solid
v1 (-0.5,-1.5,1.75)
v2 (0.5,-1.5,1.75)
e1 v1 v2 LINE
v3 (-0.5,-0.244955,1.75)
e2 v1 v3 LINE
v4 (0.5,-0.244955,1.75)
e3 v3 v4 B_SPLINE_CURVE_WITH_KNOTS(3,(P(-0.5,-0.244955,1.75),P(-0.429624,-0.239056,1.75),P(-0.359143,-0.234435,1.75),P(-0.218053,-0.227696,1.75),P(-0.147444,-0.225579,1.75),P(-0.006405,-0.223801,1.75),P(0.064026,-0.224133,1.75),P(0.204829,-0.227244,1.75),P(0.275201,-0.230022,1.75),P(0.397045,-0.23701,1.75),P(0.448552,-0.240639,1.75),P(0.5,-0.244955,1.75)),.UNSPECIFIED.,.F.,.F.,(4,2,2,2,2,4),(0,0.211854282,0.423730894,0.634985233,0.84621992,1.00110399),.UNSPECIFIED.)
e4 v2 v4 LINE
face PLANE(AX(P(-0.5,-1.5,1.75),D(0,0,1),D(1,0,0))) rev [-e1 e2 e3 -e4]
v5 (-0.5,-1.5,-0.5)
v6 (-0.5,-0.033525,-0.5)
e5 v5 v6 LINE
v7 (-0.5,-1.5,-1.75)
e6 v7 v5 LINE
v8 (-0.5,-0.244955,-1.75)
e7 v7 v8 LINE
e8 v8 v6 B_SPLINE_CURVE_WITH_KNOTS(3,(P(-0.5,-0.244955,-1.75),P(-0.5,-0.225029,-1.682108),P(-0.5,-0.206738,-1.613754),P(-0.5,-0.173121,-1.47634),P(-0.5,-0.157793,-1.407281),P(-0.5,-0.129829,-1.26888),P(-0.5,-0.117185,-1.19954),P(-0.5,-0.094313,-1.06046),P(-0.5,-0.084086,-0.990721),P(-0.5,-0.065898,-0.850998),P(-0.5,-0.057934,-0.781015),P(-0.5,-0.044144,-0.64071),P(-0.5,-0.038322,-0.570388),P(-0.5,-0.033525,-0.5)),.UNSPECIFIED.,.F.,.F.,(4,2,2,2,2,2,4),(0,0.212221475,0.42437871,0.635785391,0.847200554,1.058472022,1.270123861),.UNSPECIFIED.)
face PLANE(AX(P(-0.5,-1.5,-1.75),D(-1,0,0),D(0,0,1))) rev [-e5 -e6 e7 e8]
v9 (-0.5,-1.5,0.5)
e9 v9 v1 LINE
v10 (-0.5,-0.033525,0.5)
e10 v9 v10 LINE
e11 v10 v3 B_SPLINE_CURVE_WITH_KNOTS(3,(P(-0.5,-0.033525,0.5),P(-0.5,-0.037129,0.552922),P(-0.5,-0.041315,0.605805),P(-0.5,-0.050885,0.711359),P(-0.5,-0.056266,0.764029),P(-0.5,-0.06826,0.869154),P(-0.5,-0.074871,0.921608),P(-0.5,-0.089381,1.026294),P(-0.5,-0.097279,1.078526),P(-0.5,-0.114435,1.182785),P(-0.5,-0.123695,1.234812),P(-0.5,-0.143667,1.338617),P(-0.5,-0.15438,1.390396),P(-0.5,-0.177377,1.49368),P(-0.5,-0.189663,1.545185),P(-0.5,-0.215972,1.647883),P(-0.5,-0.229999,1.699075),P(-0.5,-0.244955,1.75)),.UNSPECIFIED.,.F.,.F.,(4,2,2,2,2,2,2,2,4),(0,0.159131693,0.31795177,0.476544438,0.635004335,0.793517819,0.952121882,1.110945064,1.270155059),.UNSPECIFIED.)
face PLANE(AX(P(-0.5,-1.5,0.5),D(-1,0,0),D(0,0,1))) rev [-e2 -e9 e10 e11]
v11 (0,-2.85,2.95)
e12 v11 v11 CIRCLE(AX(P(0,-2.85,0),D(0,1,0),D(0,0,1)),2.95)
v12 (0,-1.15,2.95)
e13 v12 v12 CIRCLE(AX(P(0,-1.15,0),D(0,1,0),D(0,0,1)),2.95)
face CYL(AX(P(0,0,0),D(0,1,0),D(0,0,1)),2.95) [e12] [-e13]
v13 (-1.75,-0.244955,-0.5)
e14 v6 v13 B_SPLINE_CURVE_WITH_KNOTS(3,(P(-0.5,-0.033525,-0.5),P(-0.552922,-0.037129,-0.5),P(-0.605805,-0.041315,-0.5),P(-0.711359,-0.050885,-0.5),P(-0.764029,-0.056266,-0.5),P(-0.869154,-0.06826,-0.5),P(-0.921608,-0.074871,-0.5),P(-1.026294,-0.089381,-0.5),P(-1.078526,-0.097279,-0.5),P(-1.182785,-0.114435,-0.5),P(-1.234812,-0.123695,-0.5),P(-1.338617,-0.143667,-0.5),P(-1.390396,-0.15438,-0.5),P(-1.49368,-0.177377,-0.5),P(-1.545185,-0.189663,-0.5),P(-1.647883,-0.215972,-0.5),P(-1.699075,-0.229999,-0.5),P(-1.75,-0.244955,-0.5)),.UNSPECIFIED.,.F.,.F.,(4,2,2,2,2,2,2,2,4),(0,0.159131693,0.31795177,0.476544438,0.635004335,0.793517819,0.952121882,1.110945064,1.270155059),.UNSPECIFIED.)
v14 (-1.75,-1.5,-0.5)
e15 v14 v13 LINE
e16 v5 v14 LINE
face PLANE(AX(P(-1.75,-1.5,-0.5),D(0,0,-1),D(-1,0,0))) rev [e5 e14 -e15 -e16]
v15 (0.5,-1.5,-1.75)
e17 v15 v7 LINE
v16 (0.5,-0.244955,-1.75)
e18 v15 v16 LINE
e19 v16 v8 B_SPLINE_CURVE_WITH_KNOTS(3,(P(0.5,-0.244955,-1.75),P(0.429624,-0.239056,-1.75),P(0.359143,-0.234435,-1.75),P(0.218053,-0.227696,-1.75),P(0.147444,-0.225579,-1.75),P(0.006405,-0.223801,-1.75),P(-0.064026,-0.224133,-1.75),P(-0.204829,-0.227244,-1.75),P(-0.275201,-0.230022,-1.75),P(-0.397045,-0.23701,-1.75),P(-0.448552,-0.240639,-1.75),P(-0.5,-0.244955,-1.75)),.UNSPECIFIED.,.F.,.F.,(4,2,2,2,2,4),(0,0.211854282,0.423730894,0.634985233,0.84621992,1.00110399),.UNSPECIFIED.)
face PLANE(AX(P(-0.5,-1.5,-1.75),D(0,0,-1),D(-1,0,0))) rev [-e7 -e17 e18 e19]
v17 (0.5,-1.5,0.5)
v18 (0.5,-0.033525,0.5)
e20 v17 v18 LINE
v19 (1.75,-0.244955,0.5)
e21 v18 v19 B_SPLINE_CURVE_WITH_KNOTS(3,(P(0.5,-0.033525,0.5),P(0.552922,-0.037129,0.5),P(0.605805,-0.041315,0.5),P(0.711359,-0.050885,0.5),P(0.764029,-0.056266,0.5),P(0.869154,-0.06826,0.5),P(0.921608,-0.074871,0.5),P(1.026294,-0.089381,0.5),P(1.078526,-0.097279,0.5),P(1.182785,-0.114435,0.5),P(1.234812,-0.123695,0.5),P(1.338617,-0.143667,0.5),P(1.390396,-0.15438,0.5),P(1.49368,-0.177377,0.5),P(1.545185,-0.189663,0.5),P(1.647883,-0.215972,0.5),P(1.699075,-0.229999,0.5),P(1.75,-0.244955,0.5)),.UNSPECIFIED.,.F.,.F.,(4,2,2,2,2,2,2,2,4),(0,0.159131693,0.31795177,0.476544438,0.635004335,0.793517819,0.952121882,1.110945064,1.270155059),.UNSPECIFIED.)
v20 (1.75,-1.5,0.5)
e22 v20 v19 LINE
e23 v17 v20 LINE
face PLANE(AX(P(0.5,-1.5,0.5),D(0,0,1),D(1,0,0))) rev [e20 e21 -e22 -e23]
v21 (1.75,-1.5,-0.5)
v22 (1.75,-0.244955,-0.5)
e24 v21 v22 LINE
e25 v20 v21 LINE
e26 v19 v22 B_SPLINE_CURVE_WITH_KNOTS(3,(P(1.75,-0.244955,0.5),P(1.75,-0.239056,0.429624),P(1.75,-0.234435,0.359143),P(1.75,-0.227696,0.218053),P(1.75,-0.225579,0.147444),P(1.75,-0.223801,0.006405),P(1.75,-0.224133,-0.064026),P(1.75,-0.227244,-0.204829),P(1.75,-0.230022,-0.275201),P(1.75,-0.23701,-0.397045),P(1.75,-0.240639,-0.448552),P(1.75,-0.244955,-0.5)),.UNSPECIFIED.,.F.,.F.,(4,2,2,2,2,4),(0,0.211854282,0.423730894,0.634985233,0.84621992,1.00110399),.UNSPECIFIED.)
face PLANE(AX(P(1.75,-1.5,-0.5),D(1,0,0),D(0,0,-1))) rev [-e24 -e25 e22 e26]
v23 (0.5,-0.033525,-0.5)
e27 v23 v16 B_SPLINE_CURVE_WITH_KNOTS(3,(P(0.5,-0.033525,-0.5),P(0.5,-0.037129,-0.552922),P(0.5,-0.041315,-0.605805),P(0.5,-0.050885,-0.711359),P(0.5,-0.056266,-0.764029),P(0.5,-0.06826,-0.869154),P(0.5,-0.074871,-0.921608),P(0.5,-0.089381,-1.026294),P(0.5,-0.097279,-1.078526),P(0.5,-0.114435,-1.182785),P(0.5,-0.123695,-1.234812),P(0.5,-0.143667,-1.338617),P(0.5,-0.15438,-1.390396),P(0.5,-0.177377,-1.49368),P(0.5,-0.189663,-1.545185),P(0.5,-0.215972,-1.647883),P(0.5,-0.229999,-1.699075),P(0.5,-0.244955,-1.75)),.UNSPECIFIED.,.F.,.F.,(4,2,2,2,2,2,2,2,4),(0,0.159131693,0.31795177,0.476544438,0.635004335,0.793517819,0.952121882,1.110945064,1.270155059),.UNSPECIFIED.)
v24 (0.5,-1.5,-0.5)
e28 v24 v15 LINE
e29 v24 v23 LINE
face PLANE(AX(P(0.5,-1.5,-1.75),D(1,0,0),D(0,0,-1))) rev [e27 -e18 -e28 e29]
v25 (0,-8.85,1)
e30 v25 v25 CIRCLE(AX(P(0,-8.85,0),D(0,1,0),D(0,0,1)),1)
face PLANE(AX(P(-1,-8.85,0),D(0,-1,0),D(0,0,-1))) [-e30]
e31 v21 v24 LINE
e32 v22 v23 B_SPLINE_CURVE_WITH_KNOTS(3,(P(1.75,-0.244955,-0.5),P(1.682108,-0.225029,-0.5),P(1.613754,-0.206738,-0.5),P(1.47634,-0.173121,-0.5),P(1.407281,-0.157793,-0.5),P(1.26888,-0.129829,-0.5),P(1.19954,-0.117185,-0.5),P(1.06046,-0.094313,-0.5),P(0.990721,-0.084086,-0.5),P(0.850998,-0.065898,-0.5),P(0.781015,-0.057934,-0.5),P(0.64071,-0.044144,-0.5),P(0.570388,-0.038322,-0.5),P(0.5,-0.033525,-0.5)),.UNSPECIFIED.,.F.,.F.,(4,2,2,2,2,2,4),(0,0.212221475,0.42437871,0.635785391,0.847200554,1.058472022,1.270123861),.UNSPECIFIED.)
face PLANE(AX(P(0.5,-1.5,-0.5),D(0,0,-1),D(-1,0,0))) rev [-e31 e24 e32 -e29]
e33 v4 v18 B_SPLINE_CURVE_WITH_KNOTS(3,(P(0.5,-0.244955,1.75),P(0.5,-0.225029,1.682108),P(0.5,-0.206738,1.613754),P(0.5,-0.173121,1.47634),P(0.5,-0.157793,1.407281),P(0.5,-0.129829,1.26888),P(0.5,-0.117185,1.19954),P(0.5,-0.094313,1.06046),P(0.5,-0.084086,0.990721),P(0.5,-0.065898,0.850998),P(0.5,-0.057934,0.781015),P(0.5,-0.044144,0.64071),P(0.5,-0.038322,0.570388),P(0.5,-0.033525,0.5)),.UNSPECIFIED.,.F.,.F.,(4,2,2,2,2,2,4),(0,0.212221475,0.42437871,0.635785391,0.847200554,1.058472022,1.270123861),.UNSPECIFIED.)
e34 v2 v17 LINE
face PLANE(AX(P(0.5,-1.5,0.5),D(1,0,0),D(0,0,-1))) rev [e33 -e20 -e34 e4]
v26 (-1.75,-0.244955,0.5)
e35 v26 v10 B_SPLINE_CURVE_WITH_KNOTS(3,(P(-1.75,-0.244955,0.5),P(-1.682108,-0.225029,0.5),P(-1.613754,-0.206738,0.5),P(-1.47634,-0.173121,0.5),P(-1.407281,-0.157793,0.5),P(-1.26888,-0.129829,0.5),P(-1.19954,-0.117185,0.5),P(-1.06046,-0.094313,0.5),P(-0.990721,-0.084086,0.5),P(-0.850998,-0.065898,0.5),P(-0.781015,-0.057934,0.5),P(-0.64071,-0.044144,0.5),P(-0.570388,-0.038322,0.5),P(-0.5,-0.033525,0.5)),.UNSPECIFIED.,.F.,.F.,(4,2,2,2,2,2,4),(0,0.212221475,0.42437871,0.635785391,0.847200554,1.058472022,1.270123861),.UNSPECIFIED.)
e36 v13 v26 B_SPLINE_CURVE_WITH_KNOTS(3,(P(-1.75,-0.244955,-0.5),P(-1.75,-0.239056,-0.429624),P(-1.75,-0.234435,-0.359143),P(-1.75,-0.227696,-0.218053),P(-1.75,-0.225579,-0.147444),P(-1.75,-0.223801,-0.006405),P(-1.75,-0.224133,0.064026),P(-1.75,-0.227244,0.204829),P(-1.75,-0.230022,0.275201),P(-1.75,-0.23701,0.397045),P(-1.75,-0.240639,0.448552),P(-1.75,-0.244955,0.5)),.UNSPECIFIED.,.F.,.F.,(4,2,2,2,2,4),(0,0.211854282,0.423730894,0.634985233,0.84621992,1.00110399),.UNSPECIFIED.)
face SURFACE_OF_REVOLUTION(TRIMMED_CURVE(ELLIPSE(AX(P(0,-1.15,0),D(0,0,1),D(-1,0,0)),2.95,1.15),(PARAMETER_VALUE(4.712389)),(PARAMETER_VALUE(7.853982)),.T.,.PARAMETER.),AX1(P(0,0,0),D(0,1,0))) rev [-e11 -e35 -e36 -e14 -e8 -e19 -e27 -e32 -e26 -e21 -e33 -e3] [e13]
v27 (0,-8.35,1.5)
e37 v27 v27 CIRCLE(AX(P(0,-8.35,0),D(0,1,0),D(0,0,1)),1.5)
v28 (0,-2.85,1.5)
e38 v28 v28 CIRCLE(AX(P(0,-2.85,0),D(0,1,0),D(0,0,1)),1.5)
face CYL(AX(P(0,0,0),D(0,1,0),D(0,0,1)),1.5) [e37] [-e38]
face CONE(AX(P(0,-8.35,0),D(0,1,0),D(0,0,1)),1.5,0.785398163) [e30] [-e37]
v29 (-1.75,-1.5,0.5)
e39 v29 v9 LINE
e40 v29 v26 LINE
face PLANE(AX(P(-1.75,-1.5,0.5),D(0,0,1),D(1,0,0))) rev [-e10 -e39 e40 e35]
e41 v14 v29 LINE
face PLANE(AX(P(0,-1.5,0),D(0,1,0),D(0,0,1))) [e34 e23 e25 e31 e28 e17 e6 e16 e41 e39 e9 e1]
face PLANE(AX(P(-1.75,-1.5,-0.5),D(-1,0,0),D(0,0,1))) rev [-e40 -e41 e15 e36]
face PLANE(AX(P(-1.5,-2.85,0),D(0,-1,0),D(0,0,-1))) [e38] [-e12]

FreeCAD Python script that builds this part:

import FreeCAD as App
import Part
import Sketcher
Q = App.Units.Quantity


def add_polygon(sketch, points):
    """Adds a closed chain of lines whose ends are joined by coincident constraints."""
    first, n = sketch.GeometryCount, len(points)
    for a, b in zip(points, points[1:] + points[:1]):
        sketch.addGeometry(Part.LineSegment(App.Vector(*a, 0), App.Vector(*b, 0)), False)
    for i in range(n):
        sketch.addConstraint(Sketcher.Constraint("Coincident", first + i, 2, first + (i + 1) % n, 1))

doc = App.newDocument("Part")
params = doc.addObject("Spreadsheet::Sheet", "Params")
for row, (alias, value) in enumerate([
    ("sketch1_width", "1 mm"),
    ("sketch1_height", "5.5 mm"),
    ("sketch1_height2", "1.7 mm"),
    ("revolution_angle", "360 deg"),
    ("sketch2_width", "1 mm"),
    ("sketch2_width2", "1.25 mm"),
    ("pocket1_length", "1.5 mm"),
], start=1):
    params.set(f"A{row}", alias)
    params.set(f"B{row}", "=" + value)
    params.setAlias(f"B{row}", alias)

body = doc.addObject("PartDesign::Body", "Body")

sketch1 = body.newObject("Sketcher::SketchObject", "Sketch")
sketch1.AttachmentSupport = (doc.getObject("XY_Plane"), [""])
sketch1.MapMode = "FlatFace"
sketch1.addGeometry([
    Part.LineSegment(App.Vector(-1.5, -2.85, 0), App.Vector(-1.5, -8.35, 0)),
    Part.LineSegment(App.Vector(-1.5, -8.35, 0), App.Vector(-1, -8.85, 0)),
    Part.LineSegment(App.Vector(-1, -8.85, 0), App.Vector(0, -8.85, 0)),
    Part.LineSegment(App.Vector(0, -8.85, 0), App.Vector(0, 0, 0)),
    Part.BSplineCurve([App.Vector(0, 0, 0), App.Vector(-2.95, 0, 0), App.Vector(-2.95, -1.15, 0)], [3, 3], [4.71238898, 6.283185307], False, 2, [1, 0.707106781, 1], False),
    Part.LineSegment(App.Vector(-2.95, -1.15, 0), App.Vector(-2.95, -2.85, 0)),
    Part.LineSegment(App.Vector(-2.95, -2.85, 0), App.Vector(-1.5, -2.85, 0)),
], False)
sketch1.addConstraint([
    Sketcher.Constraint("Block", 4),
    Sketcher.Constraint("Coincident", 0, 2, 1, 1),
    Sketcher.Constraint("Coincident", 1, 2, 2, 1),
    Sketcher.Constraint("Coincident", 2, 2, 3, 1),
    Sketcher.Constraint("Coincident", 3, 2, 4, 1),
    Sketcher.Constraint("Coincident", 4, 2, 5, 1),
    Sketcher.Constraint("Coincident", 5, 2, 6, 1),
    Sketcher.Constraint("Coincident", 6, 2, 0, 1),
    Sketcher.Constraint("Vertical", 0),
    Sketcher.Constraint("Horizontal", 2),
    Sketcher.Constraint("Vertical", 3),
    Sketcher.Constraint("Vertical", 5),
    Sketcher.Constraint("Horizontal", 6),
    Sketcher.Constraint("DistanceX", 2, 1, 2, 2, 1.0),
    Sketcher.Constraint("Angle", 1, Q("-45 deg")),
    Sketcher.Constraint("DistanceY", 0, 2, 0, 1, 5.5),
    Sketcher.Constraint("DistanceY", 5, 2, 5, 1, 1.7),
    Sketcher.Constraint("DistanceY", 1, 2, 5, 2, 6.0),
])
sketch1.setExpression("Constraints[13]", "Params.sketch1_width")
sketch1.setExpression("Constraints[15]", "Params.sketch1_height")
sketch1.setExpression("Constraints[16]", "Params.sketch1_height2")
revolution = body.newObject("PartDesign::Revolution", "Revolution")
revolution.Profile = sketch1
revolution.ReferenceAxis = (sketch1, ["V_Axis"])
revolution.setExpression("Angle", "Params.revolution_angle")

sketch2 = body.newObject("Sketcher::SketchObject", "Sketch001")
sketch2.AttachmentSupport = (doc.getObject("XZ_Plane"), [""])
sketch2.MapMode = "FlatFace"
add_polygon(sketch2, [(-0.5, -0.5), (-1.8, -0.5), (-1.8, 0.5), (-0.5, 0.5), (-0.5, 1.8), (0.5, 1.8), (0.5, 0.5), (1.8, 0.5), (1.8, -0.5), (0.5, -0.5), (0.5, -1.8), (-0.5, -1.8)])
sketch2.addConstraint([
    Sketcher.Constraint("Horizontal", 0),
    Sketcher.Constraint("Vertical", 1),
    Sketcher.Constraint("Horizontal", 2),
    Sketcher.Constraint("Vertical", 3),
    Sketcher.Constraint("Horizontal", 4),
    Sketcher.Constraint("Vertical", 5),
    Sketcher.Constraint("Horizontal", 6),
    Sketcher.Constraint("Vertical", 7),
    Sketcher.Constraint("Horizontal", 8),
    Sketcher.Constraint("Vertical", 9),
    Sketcher.Constraint("Horizontal", 10),
    Sketcher.Constraint("Vertical", 11),
    Sketcher.Constraint("Symmetric", 0, 2, 6, 2, -1, 1),
    Sketcher.Constraint("Symmetric", 2, 2, 8, 2, -1, 1),
    Sketcher.Constraint("Symmetric", 4, 2, 10, 2, -1, 1),
    Sketcher.Constraint("Symmetric", 2, 2, 5, 2, -2),
    Sketcher.Constraint("Equal", 10, 1),
    Sketcher.Constraint("Equal", 8, 3),
    Sketcher.Constraint("DistanceX", 4, 1, 4, 2, 1.0),
    Sketcher.Constraint("DistanceX", 0, 2, 0, 1, 1.25),
])
sketch2.setExpression("Constraints[30]", "Params.sketch2_width")
sketch2.setExpression("Constraints[31]", "Params.sketch2_width2")
pocket1 = body.newObject("PartDesign::Pocket", "Pocket")
pocket1.Profile = sketch2
pocket1.setExpression("Length", "Params.pocket1_length")
pocket1.Reversed = True

doc.recompute()
